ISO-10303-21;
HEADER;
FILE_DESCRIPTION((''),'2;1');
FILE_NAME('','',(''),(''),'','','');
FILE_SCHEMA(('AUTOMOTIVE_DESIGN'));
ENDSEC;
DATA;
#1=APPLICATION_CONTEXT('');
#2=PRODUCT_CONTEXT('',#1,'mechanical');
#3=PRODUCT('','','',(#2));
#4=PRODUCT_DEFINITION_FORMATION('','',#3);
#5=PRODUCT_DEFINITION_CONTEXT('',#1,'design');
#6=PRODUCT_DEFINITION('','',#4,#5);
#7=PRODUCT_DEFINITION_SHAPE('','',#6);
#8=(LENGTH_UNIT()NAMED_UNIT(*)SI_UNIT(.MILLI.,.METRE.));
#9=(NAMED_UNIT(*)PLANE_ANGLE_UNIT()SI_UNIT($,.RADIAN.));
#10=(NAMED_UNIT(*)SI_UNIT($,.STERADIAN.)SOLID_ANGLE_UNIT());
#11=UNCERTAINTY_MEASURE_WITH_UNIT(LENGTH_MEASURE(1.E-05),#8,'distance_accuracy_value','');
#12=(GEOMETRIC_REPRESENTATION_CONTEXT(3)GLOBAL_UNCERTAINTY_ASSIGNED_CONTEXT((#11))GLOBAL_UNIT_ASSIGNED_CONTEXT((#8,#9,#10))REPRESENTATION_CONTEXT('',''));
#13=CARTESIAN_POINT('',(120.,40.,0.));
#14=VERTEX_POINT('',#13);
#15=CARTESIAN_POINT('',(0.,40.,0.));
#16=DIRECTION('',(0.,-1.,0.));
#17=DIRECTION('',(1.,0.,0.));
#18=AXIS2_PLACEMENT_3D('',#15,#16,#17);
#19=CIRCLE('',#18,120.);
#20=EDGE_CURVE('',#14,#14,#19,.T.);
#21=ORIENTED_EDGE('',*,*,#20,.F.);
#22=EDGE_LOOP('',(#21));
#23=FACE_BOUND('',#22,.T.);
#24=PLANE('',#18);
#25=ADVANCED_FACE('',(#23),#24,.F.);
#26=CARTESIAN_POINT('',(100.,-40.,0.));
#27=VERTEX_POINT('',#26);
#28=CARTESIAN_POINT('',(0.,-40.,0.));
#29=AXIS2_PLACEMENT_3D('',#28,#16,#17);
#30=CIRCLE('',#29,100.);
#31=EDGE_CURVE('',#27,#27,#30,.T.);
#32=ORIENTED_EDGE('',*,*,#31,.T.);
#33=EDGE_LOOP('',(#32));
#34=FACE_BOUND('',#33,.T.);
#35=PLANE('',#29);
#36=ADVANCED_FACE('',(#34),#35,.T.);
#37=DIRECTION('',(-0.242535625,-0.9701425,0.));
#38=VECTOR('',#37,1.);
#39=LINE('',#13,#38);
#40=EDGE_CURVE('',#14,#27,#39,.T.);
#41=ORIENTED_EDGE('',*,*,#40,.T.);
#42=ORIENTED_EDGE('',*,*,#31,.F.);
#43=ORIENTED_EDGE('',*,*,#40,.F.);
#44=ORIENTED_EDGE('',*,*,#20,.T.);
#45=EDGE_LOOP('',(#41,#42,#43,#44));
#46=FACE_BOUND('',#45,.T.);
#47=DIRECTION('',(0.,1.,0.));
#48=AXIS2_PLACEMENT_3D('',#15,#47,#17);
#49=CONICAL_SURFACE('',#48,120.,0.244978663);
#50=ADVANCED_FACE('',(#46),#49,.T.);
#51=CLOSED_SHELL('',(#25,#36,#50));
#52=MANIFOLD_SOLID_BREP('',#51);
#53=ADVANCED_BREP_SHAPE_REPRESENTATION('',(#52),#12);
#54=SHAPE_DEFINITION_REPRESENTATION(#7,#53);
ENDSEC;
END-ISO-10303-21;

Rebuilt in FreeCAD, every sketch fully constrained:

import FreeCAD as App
import Part
import Sketcher

V = App.Vector
Q = App.Units.Quantity


def add_polygon(sketch, points):
    """Adds a closed chain of lines whose ends are joined by coincident constraints."""
    first, n = sketch.GeometryCount, len(points)
    for a, b in zip(points, points[1:] + points[:1]):
        sketch.addGeometry(Part.LineSegment(App.Vector(*a, 0), App.Vector(*b, 0)), False)
    for i in range(n):
        sketch.addConstraint(Sketcher.Constraint("Coincident", first + i, 2, first + (i + 1) % n, 1))

doc = App.newDocument("Part")
params = doc.addObject("Spreadsheet::Sheet", "Params")
for row, (alias, value) in enumerate([
    ("sketch1_width", "3.937 in"),
    ("revolution_angle", "360 deg"),
], start=1):
    params.set(f"A{row}", alias)
    params.set(f"B{row}", "=" + value)
    params.setAlias(f"B{row}", alias)

body = doc.addObject("PartDesign::Body", "Body")

# Sketch on XY plane
sketch1 = body.newObject("Sketcher::SketchObject", "Sketch")
sketch1.AttachmentSupport = (doc.getObject("XY_Plane"), [""])
sketch1.MapMode = "FlatFace"
add_polygon(sketch1, [(120, 40), (0, 40), (0, -40), (100, -40)])  # lines 0-3
sketch1.addConstraint([
    Sketcher.Constraint("Horizontal", 0),
    Sketcher.Constraint("Vertical", 1),
    Sketcher.Constraint("Horizontal", 2),
    Sketcher.Constraint("Symmetric", 0, 2, 1, 2, -1, 1),
    Sketcher.Constraint("DistanceX", 2, 1, 2, 2, Q("3.937 in")),
    Sketcher.Constraint("DistanceX", 0, 2, 0, 1, Q("4.7244 in")),
    Sketcher.Constraint("DistanceY", 1, 2, 1, 1, Q("3.1496 in")),
])
sketch1.setExpression("Constraints[8]", "Params.sketch1_width")
revolution = body.newObject("PartDesign::Revolution", "Revolution")
revolution.Profile = sketch1
revolution.ReferenceAxis = (sketch1, ["V_Axis"])
revolution.setExpression("Angle", "Params.revolution_angle")

doc.recompute()
